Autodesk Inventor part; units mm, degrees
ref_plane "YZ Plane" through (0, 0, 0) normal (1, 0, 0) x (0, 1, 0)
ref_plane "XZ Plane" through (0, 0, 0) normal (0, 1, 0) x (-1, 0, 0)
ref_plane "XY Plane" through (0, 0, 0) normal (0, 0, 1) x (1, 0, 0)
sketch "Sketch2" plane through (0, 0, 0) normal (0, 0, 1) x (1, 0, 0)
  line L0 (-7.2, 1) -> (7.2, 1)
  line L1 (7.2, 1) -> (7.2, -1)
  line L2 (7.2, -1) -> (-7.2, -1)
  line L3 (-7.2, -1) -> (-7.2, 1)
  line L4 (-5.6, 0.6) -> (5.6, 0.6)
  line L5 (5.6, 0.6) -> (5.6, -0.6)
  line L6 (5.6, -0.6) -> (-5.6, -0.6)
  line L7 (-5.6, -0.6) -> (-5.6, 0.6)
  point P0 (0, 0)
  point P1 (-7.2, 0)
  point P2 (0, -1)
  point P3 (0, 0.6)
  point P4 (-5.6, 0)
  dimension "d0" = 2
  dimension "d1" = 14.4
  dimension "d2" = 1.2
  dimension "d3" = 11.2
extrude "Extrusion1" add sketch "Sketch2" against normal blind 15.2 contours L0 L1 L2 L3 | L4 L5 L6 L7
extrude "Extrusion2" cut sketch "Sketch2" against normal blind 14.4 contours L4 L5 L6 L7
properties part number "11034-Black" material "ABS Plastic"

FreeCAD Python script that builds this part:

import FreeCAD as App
import Part
import Sketcher
Q = App.Units.Quantity

doc = App.newDocument("Part")
body = doc.addObject("PartDesign::Body", "Body")

# Sketch on XY plane
sketch1 = body.newObject("Sketcher::SketchObject", "Sketch")
sketch1.AttachmentSupport = (doc.getObject("XY_Plane"), [""])
sketch1.MapMode = "FlatFace"
sketch1.addGeometry(Part.LineSegment(App.Vector(7.2, 1, 0), App.Vector(-7.2, 1, 0)), False)
sketch1.addGeometry(Part.LineSegment(App.Vector(-7.2, 1, 0), App.Vector(-7.2, -1, 0)), False)
sketch1.addGeometry(Part.LineSegment(App.Vector(-7.2, -1, 0), App.Vector(7.2, -1, 0)), False)
sketch1.addGeometry(Part.LineSegment(App.Vector(7.2, -1, 0), App.Vector(7.2, 1, 0)), False)
sketch1.addConstraint(Sketcher.Constraint("Coincident", 0, 2, 1, 1))
sketch1.addConstraint(Sketcher.Constraint("Coincident", 1, 2, 2, 1))
sketch1.addConstraint(Sketcher.Constraint("Coincident", 2, 2, 3, 1))
sketch1.addConstraint(Sketcher.Constraint("Coincident", 3, 2, 0, 1))
sketch1.addConstraint(Sketcher.Constraint("Horizontal", 0))
sketch1.addConstraint(Sketcher.Constraint("Vertical", 1))
sketch1.addConstraint(Sketcher.Constraint("Horizontal", 2))
sketch1.addConstraint(Sketcher.Constraint("Vertical", 3))
sketch1.addConstraint(Sketcher.Constraint("Symmetric", 0, 2, 2, 2, -1, 1))
sketch1.addConstraint(Sketcher.Constraint("DistanceY", 1, 2, 1, 1, Q("2 mm")))
sketch1.addConstraint(Sketcher.Constraint("DistanceX", 0, 2, 0, 1, Q("14.4 mm")))
pad1 = body.newObject("PartDesign::Pad", "Pad")
pad1.Profile = sketch1
pad1.Length = 15.2
pad1.Reversed = True

# Sketch on XY plane
sketch2 = body.newObject("Sketcher::SketchObject", "Sketch001")
sketch2.AttachmentSupport = (doc.getObject("XY_Plane"), [""])
sketch2.MapMode = "FlatFace"
sketch2.addGeometry(Part.LineSegment(App.Vector(5.6, 0.6, 0), App.Vector(-5.6, 0.6, 0)), False)
sketch2.addGeometry(Part.LineSegment(App.Vector(-5.6, 0.6, 0), App.Vector(-5.6, -0.6, 0)), False)
sketch2.addGeometry(Part.LineSegment(App.Vector(-5.6, -0.6, 0), App.Vector(5.6, -0.6, 0)), False)
sketch2.addGeometry(Part.LineSegment(App.Vector(5.6, -0.6, 0), App.Vector(5.6, 0.6, 0)), False)
sketch2.addConstraint(Sketcher.Constraint("Coincident", 0, 2, 1, 1))
sketch2.addConstraint(Sketcher.Constraint("Coincident", 1, 2, 2, 1))
sketch2.addConstraint(Sketcher.Constraint("Coincident", 2, 2, 3, 1))
sketch2.addConstraint(Sketcher.Constraint("Coincident", 3, 2, 0, 1))
sketch2.addConstraint(Sketcher.Constraint("Horizontal", 0))
sketch2.addConstraint(Sketcher.Constraint("Vertical", 1))
sketch2.addConstraint(Sketcher.Constraint("Horizontal", 2))
sketch2.addConstraint(Sketcher.Constraint("Vertical", 3))
sketch2.addConstraint(Sketcher.Constraint("Symmetric", 0, 2, 2, 2, -1, 1))
sketch2.addConstraint(Sketcher.Constraint("DistanceX", 0, 2, 0, 1, Q("11.2 mm")))
sketch2.addConstraint(Sketcher.Constraint("DistanceY", 1, 2, 1, 1, Q("1.2 mm")))
pocket1 = body.newObject("PartDesign::Pocket", "Pocket")
pocket1.Profile = sketch2
pocket1.Length = 14.4

doc.recompute()
